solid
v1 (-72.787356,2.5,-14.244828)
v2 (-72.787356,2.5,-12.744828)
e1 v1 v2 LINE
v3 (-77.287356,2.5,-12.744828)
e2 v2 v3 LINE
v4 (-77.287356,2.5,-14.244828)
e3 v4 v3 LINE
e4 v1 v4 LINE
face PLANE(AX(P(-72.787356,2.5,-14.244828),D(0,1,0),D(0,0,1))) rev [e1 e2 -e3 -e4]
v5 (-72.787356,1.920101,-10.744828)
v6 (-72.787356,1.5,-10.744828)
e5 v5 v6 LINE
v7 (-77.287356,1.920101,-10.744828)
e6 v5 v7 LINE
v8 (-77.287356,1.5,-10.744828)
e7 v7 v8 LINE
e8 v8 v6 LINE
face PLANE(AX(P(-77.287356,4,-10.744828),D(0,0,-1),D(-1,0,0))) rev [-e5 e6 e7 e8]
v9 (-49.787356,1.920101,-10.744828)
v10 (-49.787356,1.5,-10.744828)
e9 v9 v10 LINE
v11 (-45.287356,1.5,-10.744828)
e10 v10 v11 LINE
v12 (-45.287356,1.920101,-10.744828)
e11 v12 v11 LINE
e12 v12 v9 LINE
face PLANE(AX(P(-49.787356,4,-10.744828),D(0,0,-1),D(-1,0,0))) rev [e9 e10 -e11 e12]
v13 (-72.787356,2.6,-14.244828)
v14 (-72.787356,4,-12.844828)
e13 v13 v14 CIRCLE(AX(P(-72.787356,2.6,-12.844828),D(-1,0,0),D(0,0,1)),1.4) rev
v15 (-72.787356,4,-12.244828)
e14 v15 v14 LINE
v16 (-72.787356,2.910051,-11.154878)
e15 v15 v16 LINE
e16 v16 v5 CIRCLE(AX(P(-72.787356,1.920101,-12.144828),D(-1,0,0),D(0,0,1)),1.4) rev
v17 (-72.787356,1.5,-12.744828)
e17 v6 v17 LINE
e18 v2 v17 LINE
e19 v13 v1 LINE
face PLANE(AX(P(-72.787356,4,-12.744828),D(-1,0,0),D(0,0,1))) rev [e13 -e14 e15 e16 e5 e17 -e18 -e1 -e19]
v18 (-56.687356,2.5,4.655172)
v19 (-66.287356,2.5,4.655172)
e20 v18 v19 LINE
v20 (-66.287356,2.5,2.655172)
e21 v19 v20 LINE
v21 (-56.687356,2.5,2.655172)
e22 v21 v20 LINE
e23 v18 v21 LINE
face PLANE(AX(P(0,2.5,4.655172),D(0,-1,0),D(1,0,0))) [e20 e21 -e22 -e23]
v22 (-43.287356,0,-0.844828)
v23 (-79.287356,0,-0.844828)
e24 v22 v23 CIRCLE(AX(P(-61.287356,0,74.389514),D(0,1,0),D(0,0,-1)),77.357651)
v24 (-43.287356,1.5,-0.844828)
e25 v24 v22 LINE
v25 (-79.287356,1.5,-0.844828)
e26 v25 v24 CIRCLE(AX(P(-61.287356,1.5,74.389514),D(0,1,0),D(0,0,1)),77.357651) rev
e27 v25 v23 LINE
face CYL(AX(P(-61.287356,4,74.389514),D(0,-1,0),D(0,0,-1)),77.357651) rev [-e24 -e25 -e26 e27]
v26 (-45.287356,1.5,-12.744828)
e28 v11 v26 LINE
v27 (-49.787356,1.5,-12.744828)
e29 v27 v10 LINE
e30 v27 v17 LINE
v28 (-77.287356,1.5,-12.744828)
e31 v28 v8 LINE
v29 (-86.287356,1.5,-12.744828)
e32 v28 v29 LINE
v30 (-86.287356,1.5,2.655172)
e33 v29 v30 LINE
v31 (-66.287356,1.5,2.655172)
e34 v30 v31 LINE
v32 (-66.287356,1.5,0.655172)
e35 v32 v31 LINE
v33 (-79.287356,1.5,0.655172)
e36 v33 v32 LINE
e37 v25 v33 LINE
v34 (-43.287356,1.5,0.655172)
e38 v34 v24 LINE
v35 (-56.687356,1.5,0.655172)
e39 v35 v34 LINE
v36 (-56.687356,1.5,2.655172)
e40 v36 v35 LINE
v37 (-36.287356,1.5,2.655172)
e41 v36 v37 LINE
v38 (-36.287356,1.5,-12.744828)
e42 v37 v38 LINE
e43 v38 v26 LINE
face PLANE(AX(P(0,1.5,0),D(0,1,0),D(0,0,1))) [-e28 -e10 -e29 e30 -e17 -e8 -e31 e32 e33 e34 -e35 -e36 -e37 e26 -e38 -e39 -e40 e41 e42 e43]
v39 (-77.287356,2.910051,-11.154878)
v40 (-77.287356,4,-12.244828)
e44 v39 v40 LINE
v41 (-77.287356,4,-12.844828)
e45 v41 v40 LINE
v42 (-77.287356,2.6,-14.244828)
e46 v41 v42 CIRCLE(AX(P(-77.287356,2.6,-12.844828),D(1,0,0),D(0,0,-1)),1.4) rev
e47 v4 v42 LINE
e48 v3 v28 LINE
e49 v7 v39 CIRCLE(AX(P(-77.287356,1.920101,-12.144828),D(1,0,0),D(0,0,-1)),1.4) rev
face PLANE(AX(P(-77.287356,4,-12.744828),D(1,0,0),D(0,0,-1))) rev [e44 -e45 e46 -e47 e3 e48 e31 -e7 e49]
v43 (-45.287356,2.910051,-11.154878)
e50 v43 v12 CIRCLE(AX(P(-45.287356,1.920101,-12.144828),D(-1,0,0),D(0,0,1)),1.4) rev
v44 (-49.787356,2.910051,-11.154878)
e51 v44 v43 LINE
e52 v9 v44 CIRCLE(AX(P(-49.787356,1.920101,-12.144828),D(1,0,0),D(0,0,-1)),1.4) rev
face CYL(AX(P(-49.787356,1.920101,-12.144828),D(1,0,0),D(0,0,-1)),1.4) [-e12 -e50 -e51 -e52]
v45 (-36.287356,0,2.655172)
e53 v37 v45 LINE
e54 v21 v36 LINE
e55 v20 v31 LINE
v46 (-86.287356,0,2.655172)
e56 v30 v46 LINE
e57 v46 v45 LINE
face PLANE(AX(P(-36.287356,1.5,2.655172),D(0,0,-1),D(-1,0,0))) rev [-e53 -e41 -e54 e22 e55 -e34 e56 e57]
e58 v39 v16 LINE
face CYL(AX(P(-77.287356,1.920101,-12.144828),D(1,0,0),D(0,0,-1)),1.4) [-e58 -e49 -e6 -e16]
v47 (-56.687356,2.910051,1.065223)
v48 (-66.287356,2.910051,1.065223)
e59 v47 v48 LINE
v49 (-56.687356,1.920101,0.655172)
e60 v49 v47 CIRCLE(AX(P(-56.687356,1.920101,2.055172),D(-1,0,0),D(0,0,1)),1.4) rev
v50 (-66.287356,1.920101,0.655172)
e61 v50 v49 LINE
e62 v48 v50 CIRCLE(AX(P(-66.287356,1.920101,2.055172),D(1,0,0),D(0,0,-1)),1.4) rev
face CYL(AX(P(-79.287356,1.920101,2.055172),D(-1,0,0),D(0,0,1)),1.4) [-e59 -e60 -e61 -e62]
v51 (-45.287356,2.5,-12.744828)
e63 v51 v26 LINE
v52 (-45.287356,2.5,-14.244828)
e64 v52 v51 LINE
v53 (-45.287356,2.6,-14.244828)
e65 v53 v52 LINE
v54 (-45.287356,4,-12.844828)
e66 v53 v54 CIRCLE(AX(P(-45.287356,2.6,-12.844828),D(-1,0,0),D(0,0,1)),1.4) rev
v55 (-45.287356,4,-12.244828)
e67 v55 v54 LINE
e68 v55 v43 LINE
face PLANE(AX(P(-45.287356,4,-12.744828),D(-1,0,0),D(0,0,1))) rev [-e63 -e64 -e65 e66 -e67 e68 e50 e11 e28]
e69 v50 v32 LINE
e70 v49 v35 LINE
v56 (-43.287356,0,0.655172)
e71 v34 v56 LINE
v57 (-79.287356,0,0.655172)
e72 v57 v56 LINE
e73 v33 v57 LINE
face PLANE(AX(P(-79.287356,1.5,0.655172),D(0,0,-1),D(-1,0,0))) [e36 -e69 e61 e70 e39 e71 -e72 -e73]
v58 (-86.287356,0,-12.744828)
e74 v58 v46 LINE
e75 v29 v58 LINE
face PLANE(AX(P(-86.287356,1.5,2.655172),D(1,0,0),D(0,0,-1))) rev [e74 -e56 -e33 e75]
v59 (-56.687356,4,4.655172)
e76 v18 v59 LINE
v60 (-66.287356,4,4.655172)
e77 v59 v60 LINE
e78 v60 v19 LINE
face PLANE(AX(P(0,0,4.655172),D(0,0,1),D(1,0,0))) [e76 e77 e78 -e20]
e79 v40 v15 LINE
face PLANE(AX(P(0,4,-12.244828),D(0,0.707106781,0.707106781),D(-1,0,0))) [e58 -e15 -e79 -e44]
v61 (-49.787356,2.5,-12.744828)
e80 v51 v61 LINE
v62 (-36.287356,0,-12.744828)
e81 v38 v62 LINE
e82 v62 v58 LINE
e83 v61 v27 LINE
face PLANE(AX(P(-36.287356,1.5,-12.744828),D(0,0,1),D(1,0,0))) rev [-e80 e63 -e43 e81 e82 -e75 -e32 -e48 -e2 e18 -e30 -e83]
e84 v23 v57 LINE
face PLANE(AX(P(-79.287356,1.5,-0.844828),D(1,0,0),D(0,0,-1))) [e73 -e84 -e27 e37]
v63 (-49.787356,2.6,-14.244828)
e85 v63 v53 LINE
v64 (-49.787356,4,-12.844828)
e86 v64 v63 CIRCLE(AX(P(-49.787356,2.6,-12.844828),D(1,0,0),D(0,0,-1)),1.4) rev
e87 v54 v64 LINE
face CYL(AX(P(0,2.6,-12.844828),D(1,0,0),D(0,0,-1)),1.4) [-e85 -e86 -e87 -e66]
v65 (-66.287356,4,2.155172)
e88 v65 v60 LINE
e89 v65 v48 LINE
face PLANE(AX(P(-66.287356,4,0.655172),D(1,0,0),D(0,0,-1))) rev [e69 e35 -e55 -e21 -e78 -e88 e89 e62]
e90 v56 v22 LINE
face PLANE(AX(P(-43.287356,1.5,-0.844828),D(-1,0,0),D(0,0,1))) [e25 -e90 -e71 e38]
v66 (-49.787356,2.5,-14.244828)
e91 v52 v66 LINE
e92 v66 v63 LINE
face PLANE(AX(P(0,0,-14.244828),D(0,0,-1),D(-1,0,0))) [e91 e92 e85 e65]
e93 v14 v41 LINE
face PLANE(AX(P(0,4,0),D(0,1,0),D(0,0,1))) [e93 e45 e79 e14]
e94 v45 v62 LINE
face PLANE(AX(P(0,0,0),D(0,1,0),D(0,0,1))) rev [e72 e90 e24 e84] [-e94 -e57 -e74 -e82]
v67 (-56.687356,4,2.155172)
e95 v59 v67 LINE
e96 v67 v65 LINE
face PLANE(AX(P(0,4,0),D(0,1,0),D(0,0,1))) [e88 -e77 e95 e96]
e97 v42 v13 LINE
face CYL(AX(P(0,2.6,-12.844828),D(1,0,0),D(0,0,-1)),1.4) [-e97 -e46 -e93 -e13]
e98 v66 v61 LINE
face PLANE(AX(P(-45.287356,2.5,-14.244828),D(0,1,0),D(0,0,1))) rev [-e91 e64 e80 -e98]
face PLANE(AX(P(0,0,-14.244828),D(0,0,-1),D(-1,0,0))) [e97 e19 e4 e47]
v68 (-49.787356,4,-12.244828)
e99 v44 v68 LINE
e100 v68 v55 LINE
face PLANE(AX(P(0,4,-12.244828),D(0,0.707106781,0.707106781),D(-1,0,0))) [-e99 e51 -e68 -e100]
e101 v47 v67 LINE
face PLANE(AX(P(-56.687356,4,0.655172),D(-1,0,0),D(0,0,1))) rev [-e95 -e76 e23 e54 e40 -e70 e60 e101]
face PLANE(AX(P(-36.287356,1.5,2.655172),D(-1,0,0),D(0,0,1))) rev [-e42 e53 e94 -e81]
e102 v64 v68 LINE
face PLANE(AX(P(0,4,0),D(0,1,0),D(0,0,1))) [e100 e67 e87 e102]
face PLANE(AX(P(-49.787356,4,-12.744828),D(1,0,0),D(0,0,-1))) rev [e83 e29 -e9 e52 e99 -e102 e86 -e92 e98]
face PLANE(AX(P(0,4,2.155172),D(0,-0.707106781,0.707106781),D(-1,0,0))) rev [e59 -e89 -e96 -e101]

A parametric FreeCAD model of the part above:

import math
import FreeCAD as App
import Part
import Sketcher

V = App.Vector


def edges_at(feature, points):
    """Names of the edges that pass closest to the given points."""
    edges = feature.Shape.Edges
    near = lambda p: min(range(len(edges)), key=lambda i: edges[i].distToShape(Part.Vertex(*p))[0])
    return sorted({f"Edge{near(p) + 1}" for p in points})


def add_polygon(sketch, points):
    """Adds a closed chain of lines whose ends are joined by coincident constraints."""
    first, n = sketch.GeometryCount, len(points)
    for a, b in zip(points, points[1:] + points[:1]):
        sketch.addGeometry(Part.LineSegment(App.Vector(*a, 0), App.Vector(*b, 0)), False)
    for i in range(n):
        sketch.addConstraint(Sketcher.Constraint("Coincident", first + i, 2, first + (i + 1) % n, 1))

doc = App.newDocument("Part")
body = doc.addObject("PartDesign::Body", "Body")

sketch1 = body.newObject("Sketcher::SketchObject", "Sketch")
sketch1.AttachmentSupport = (doc.getObject("XZ_Plane"), [""])
sketch1.MapMode = "FlatFace"
add_polygon(sketch1, [(-86.3, -12.7), (-86.3, 2.7), (-36.3, 2.7), (-36.3, -12.7)])
add_polygon(sketch1, [(-43.3, 0.7), (-79.3, 0.7), (-79.3, -0.8), (-43.3, -0.8)])
sketch1.addConstraint(Sketcher.Constraint("Vertical", 0))
sketch1.addConstraint(Sketcher.Constraint("Horizontal", 1))
sketch1.addConstraint(Sketcher.Constraint("Vertical", 2))
sketch1.addConstraint(Sketcher.Constraint("Horizontal", 3))
sketch1.addConstraint(Sketcher.Constraint("Horizontal", 4))
sketch1.addConstraint(Sketcher.Constraint("Vertical", 5))
sketch1.addConstraint(Sketcher.Constraint("Horizontal", 6))
sketch1.addConstraint(Sketcher.Constraint("Vertical", 7))
sketch1.addConstraint(Sketcher.Constraint("DistanceX", 1, 1, 1, 2, 50.0))
sketch1.addConstraint(Sketcher.Constraint("DistanceX", 4, 2, 4, 1, 36.0))
sketch1.addConstraint(Sketcher.Constraint("DistanceY", 0, 1, 0, 2, 15.4))
sketch1.addConstraint(Sketcher.Constraint("DistanceY", 5, 2, 5, 1, 1.5))
sketch1.addConstraint(Sketcher.Constraint("DistanceX", 0, 2, 4, 2, 7.0))
sketch1.addConstraint(Sketcher.Constraint("DistanceY", 4, 2, 0, 2, 2.0))
sketch1.addConstraint(Sketcher.Constraint("DistanceX", 0, 2, -1, 1, 86.287356))
sketch1.addConstraint(Sketcher.Constraint("DistanceY", -1, 1, 0, 2, 2.655172))
pad1 = body.newObject("PartDesign::Pad", "Pad")
pad1.Profile = sketch1
pad1.Length = 1.5
pad1.Reversed = True

sketch2 = body.newObject("Sketcher::SketchObject", "Sketch001")
sketch2.AttachmentSupport = (doc.getObject("XZ_Plane"), [""])
sketch2.MapMode = "FlatFace"
sketch2.AttachmentOffset = App.Placement(V(0, 0, -1.5), App.Rotation())
add_polygon(sketch2, [(-66.3, 0.7), (-66.3, 2.7), (-56.7, 2.7), (-56.7, 0.7)])
add_polygon(sketch2, [(-77.3, -12.7), (-77.3, -10.7), (-72.8, -10.7), (-72.8, -12.7)])
add_polygon(sketch2, [(-49.8, -12.7), (-49.8, -10.7), (-45.3, -10.7), (-45.3, -12.7)])
sketch2.addConstraint(Sketcher.Constraint("Vertical", 0))
sketch2.addConstraint(Sketcher.Constraint("Horizontal", 1))
sketch2.addConstraint(Sketcher.Constraint("Vertical", 2))
sketch2.addConstraint(Sketcher.Constraint("Horizontal", 3))
sketch2.addConstraint(Sketcher.Constraint("Vertical", 4))
sketch2.addConstraint(Sketcher.Constraint("Horizontal", 5))
sketch2.addConstraint(Sketcher.Constraint("Vertical", 6))
sketch2.addConstraint(Sketcher.Constraint("Horizontal", 7))
sketch2.addConstraint(Sketcher.Constraint("Vertical", 8))
sketch2.addConstraint(Sketcher.Constraint("Horizontal", 9))
sketch2.addConstraint(Sketcher.Constraint("Vertical", 10))
sketch2.addConstraint(Sketcher.Constraint("Horizontal", 11))
sketch2.addConstraint(Sketcher.Constraint("Horizontal", 5, 2, 8, 2))
sketch2.addConstraint(Sketcher.Constraint("Horizontal", 7, 2, 10, 2))
sketch2.addConstraint(Sketcher.Constraint("Equal", 7, 9))
sketch2.addConstraint(Sketcher.Constraint("Equal", 2, 4))
sketch2.addConstraint(Sketcher.Constraint("DistanceY", 0, 1, 0, 2, 2.0))
sketch2.addConstraint(Sketcher.Constraint("DistanceX", 1, 1, 1, 2, 9.6))
sketch2.addConstraint(Sketcher.Constraint("DistanceX", 5, 1, 5, 2, 4.5))
sketch2.addConstraint(Sketcher.Constraint("DistanceX", 4, 2, 3, 2, 11.0))
sketch2.addConstraint(Sketcher.Constraint("DistanceX", 5, 2, 8, 2, 23.0))
sketch2.addConstraint(Sketcher.Constraint("DistanceY", 4, 2, 3, 2, 11.4))
sketch2.addConstraint(Sketcher.Constraint("DistanceX", 0, 2, -1, 1, 66.287356))
sketch2.addConstraint(Sketcher.Constraint("DistanceY", -1, 1, 0, 2, 2.655172))
pad2 = body.newObject("PartDesign::Pad", "Pad001")
pad2.Profile = sketch2
pad2.Length = 2.5
pad2.Reversed = True
doc.recompute()

chamfer = body.newObject("PartDesign::Chamfer", "Chamfer")
chamfer.Base = (pad2, edges_at(pad2, [(-75.037, 4, -10.745)]))
chamfer.Size = 1.5
doc.recompute()

chamfer2 = body.newObject("PartDesign::Chamfer", "Chamfer001")
chamfer2.Base = (chamfer, edges_at(chamfer, [(-61.487, 4, 0.655), (-47.537, 4, -10.745)]))
chamfer2.Size = 1.5
doc.recompute()

fillet = body.newObject("PartDesign::Fillet", "Fillet")
fillet.Base = (chamfer2, edges_at(chamfer2, [(-75.037, 2.5, -10.745), (-47.537, 2.5, -10.745)]))
fillet.Radius = 1.4

sketch3 = body.newObject("Sketcher::SketchObject", "Sketch002")
sketch3.AttachmentSupport = (doc.getObject("XY_Plane"), [""])
sketch3.MapMode = "FlatFace"
sketch3.AttachmentOffset = App.Placement(V(0, 0, 2.655172), App.Rotation())
add_polygon(sketch3, [(-66.3, 4), (-66.3, 2.5), (-56.7, 2.5), (-56.7, 4)])
sketch3.addConstraint(Sketcher.Constraint("Vertical", 0))
sketch3.addConstraint(Sketcher.Constraint("Horizontal", 1))
sketch3.addConstraint(Sketcher.Constraint("Vertical", 2))
sketch3.addConstraint(Sketcher.Constraint("Horizontal", 3))
sketch3.addConstraint(Sketcher.Constraint("DistanceX", 1, 1, 1, 2, 9.6))
sketch3.addConstraint(Sketcher.Constraint("DistanceY", 0, 2, 0, 1, 1.5))
sketch3.addConstraint(Sketcher.Constraint("DistanceY", -1, 1, 2, 2, 4.0))
sketch3.addConstraint(Sketcher.Constraint("DistanceX", 0, 2, -1, 1, 66.287356))
pad3 = body.newObject("PartDesign::Pad", "Pad002")
pad3.Profile = sketch3
pad3.Length = 2
doc.recompute()

fillet2 = body.newObject("PartDesign::Fillet", "Fillet001")
fillet2.Base = (pad3, edges_at(pad3, [(-61.487, 2.5, 0.655)]))
fillet2.Radius = 1.4

sketch4 = body.newObject("Sketcher::SketchObject", "Sketch003")
sketch4.AttachmentSupport = (doc.getObject("XY_Plane"), [""])
sketch4.MapMode = "FlatFace"
sketch4.AttachmentOffset = App.Placement(V(0, 0, -12.744828), App.Rotation())
add_polygon(sketch4, [(-45.3, 4), (-45.3, 2.5), (-49.8, 2.5), (-49.8, 4)])
add_polygon(sketch4, [(-72.8, 4), (-72.8, 2.5), (-77.3, 2.5), (-77.3, 4)])
sketch4.addConstraint(Sketcher.Constraint("Vertical", 0))
sketch4.addConstraint(Sketcher.Constraint("Horizontal", 1))
sketch4.addConstraint(Sketcher.Constraint("Vertical", 2))
sketch4.addConstraint(Sketcher.Constraint("Horizontal", 3))
sketch4.addConstraint(Sketcher.Constraint("Vertical", 4))
sketch4.addConstraint(Sketcher.Constraint("Horizontal", 5))
sketch4.addConstraint(Sketcher.Constraint("Vertical", 6))
sketch4.addConstraint(Sketcher.Constraint("Horizontal", 7))
sketch4.addConstraint(Sketcher.Constraint("Horizontal", 1, 2, 4, 2))
sketch4.addConstraint(Sketcher.Constraint("Horizontal", 3, 2, 6, 2))
sketch4.addConstraint(Sketcher.Constraint("Equal", 3, 5))
sketch4.addConstraint(Sketcher.Constraint("DistanceX", 1, 2, 1, 1, 4.5))
sketch4.addConstraint(Sketcher.Constraint("DistanceY", 0, 2, 0, 1, 1.5))
sketch4.addConstraint(Sketcher.Constraint("DistanceY", -1, 1, 2, 2, 4.0))
sketch4.addConstraint(Sketcher.Constraint("DistanceX", 4, 2, 1, 2, 23.0))
sketch4.addConstraint(Sketcher.Constraint("DistanceX", 0, 2, -1, 1, 45.287356))
pad4 = body.newObject("PartDesign::Pad", "Pad003")
pad4.Profile = sketch4
pad4.Length = 1.5
pad4.Reversed = True
doc.recompute()

fillet3 = body.newObject("PartDesign::Fillet", "Fillet002")
fillet3.Base = (pad4, edges_at(pad4, [(-47.537, 4, -14.245), (-75.037, 4, -14.245)]))
fillet3.Radius = 1.4

sketch5 = body.newObject("Sketcher::SketchObject", "Sketch004")
sketch5.AttachmentSupport = (doc.getObject("XZ_Plane"), [""])
sketch5.MapMode = "FlatFace"
sketch5.AttachmentOffset = App.Placement(V(0, 0, -1.5), App.Rotation())
sketch5.addGeometry(Part.LineSegment(V(-79, -1, 0), V(-43, -1, 0)), False)
sketch5.addGeometry(Part.ArcOfCircle(Part.Circle(V(-61, 74, 0), V(0, 0, 1), 77), math.radians(-103), math.radians(-77)), False)
sketch5.addConstraint(Sketcher.Constraint("Coincident", 0, 1, 1, 1))
sketch5.addConstraint(Sketcher.Constraint("Coincident", 1, 2, 0, 2))
sketch5.addConstraint(Sketcher.Constraint("Horizontal", 0))
sketch5.addConstraint(Sketcher.Constraint("DistanceX", 0, 1, 0, 2, 36.0))
sketch5.addConstraint(Sketcher.Constraint("Radius", 1, 77.357651))
sketch5.addConstraint(Sketcher.Constraint("DistanceX", 1, 3, -1, 1, 61.287356))
sketch5.addConstraint(Sketcher.Constraint("DistanceY", -1, 1, 1, 3, 74.389514))
pocket1 = body.newObject("PartDesign::Pocket", "Pocket")
pocket1.Profile = sketch5
pocket1.Type = "ThroughAll"
pocket1.Midplane = True

doc.recompute()
